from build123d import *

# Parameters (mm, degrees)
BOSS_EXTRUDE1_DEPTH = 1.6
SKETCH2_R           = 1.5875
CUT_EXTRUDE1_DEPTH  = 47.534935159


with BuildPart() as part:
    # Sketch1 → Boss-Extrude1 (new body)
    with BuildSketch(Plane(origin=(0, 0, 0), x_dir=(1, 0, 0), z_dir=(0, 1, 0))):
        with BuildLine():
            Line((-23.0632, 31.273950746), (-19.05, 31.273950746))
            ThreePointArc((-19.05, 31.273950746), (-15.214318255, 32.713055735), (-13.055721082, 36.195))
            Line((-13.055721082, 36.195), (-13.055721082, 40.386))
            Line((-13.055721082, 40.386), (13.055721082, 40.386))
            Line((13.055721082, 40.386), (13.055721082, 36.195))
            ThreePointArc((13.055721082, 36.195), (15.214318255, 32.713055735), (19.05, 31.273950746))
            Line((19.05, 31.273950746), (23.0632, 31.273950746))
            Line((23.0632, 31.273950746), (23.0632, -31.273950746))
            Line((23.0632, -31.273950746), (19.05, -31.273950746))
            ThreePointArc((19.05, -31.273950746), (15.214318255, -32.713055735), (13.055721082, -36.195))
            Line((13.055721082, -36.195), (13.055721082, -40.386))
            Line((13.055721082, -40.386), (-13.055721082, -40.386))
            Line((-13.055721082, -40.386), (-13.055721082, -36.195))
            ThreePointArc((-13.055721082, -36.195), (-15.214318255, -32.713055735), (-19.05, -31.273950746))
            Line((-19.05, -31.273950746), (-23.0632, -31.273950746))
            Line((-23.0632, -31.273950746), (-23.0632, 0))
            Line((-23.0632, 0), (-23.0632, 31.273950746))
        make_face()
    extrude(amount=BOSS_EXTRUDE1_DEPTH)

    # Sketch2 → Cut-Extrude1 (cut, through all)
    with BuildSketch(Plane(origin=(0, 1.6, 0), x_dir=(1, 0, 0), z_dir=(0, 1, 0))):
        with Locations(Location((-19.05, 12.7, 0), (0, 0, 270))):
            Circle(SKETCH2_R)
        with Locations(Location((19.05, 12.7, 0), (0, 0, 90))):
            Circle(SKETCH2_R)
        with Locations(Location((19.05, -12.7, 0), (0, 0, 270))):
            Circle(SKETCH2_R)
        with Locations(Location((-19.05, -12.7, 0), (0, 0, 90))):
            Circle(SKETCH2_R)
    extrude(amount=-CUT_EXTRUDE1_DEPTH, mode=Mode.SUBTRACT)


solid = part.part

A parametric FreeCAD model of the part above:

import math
import FreeCAD as App
import Part
import Sketcher

V = App.Vector
Q = App.Units.Quantity

doc = App.newDocument("Part")
body = doc.addObject("PartDesign::Body", "Body")

sketch1 = doc.addObject("Sketcher::SketchObject", "Sketch")
body.addObject(sketch1)
sketch1.AttachmentSupport = (doc.XZ_Plane, [""])
sketch1.MapMode = "FlatFace"
sketch1.addGeometry([
    Part.LineSegment(V(-19.05, -31.273951, 0), V(-23.0632, -31.273951, 0)),
    Part.LineSegment(V(-23.0632, -31.273951, 0), V(-23.0632, 31.273951, 0)),
    Part.LineSegment(V(-23.0632, 31.273951, 0), V(-19.05, 31.273951, 0)),
    Part.ArcOfCircle(Part.Circle(V(-19.243533, 37.621001, 0), V(0, 0, 1), 6.35), math.radians(-88.253486), math.radians(-12.977421)),
    Part.LineSegment(V(-13.055721, 36.195, 0), V(-13.055721, 40.386, 0)),
    Part.LineSegment(V(-13.055721, 40.386, 0), V(13.055721, 40.386, 0)),
    Part.LineSegment(V(13.055721, 40.386, 0), V(13.055721, 36.195, 0)),
    Part.ArcOfCircle(Part.Circle(V(19.243533, 37.621001, 0), V(0, 0, 1), 6.35), math.radians(-167.022579), math.radians(-91.746514)),
    Part.LineSegment(V(19.05, 31.273951, 0), V(23.0632, 31.273951, 0)),
    Part.LineSegment(V(23.0632, 31.273951, 0), V(23.0632, -31.273951, 0)),
    Part.LineSegment(V(23.0632, -31.273951, 0), V(19.05, -31.273951, 0)),
    Part.ArcOfCircle(Part.Circle(V(19.243533, -37.621001, 0), V(0, 0, 1), 6.35), math.radians(91.746514), math.radians(167.022579)),
    Part.LineSegment(V(13.055721, -36.195, 0), V(13.055721, -40.386, 0)),
    Part.LineSegment(V(13.055721, -40.386, 0), V(-13.055721, -40.386, 0)),
    Part.LineSegment(V(-13.055721, -40.386, 0), V(-13.055721, -36.195, 0)),
    Part.ArcOfCircle(Part.Circle(V(-19.243533, -37.621001, 0), V(0, 0, 1), 6.35), math.radians(12.977421), math.radians(88.253486)),
], False)
sketch1.addConstraint([
    Sketcher.Constraint("Coincident", 0, 2, 1, 1),
    Sketcher.Constraint("Coincident", 1, 2, 2, 1),
    Sketcher.Constraint("Coincident", 2, 2, 3, 1),
    Sketcher.Constraint("Coincident", 3, 2, 4, 1),
    Sketcher.Constraint("Coincident", 4, 2, 5, 1),
    Sketcher.Constraint("Coincident", 5, 2, 6, 1),
    Sketcher.Constraint("Coincident", 6, 2, 7, 1),
    Sketcher.Constraint("Coincident", 7, 2, 8, 1),
    Sketcher.Constraint("Coincident", 8, 2, 9, 1),
    Sketcher.Constraint("Coincident", 9, 2, 10, 1),
    Sketcher.Constraint("Coincident", 10, 2, 11, 1),
    Sketcher.Constraint("Coincident", 11, 2, 12, 1),
    Sketcher.Constraint("Coincident", 12, 2, 13, 1),
    Sketcher.Constraint("Coincident", 13, 2, 14, 1),
    Sketcher.Constraint("Coincident", 14, 2, 15, 1),
    Sketcher.Constraint("Coincident", 15, 2, 0, 1),
    Sketcher.Constraint("Horizontal", 0),
    Sketcher.Constraint("Vertical", 1),
    Sketcher.Constraint("Horizontal", 2),
    Sketcher.Constraint("Vertical", 4),
    Sketcher.Constraint("Horizontal", 5),
    Sketcher.Constraint("Vertical", 6),
    Sketcher.Constraint("Horizontal", 8),
    Sketcher.Constraint("Vertical", 9),
    Sketcher.Constraint("Horizontal", 10),
    Sketcher.Constraint("Vertical", 12),
    Sketcher.Constraint("Horizontal", 13),
    Sketcher.Constraint("Vertical", 14),
    Sketcher.Constraint("Equal", 3, 7),
    Sketcher.Constraint("Equal", 7, 11),
    Sketcher.Constraint("Equal", 11, 15),
    Sketcher.Constraint("Symmetric", 3, 3, 11, 3, -1, 1),
    Sketcher.Constraint("Symmetric", 7, 3, 15, 3, -1, 1),
    Sketcher.Constraint("Symmetric", 0, 2, 8, 2, -1, 1),
    Sketcher.Constraint("Symmetric", 4, 2, 12, 2, -1, 1),
    Sketcher.Constraint("Symmetric", 3, 3, 7, 3, -2),
    Sketcher.Constraint("Horizontal", 3, 2, 6, 2),
    Sketcher.Constraint("Horizontal", 2, 2, 7, 2),
    Sketcher.Constraint("Horizontal", 0, 2, 9, 2),
    Sketcher.Constraint("Horizontal", 11, 2, 14, 2),
    Sketcher.Constraint("Radius", 3, Q("0.25 in")),
    Sketcher.Constraint("DistanceX", 0, 2, 0, 1, Q("0.158 in")),
    Sketcher.Constraint("DistanceY", 4, 1, 4, 2, Q("0.165 in")),
    Sketcher.Constraint("DistanceX", 2, 2, -1, 1, Q("0.75 in")),
    Sketcher.Constraint("DistanceY", -1, 1, 4, 2, Q("1.59 in")),
    Sketcher.Constraint("DistanceY", 1, 1, 1, 2, 62.547901),
    Sketcher.Constraint("DistanceY", -1, 1, 3, 3, 37.621001),
])
pad1 = doc.addObject("PartDesign::Pad", "Pad")
body.addObject(pad1)
pad1.Profile = sketch1
pad1.Length = 1.6
pad1.Reversed = True

sketch2 = doc.addObject("Sketcher::SketchObject", "Sketch001")
body.addObject(sketch2)
sketch2.AttachmentSupport = (doc.XZ_Plane, [""])
sketch2.MapMode = "FlatFace"
sketch2.AttachmentOffset = App.Placement(V(0, 0, -1.6), App.Rotation())
sketch2.addGeometry([
    Part.Circle(V(-19.05, -12.7, 0), V(0, 0, 1), 1.5875),
    Part.Circle(V(19.05, -12.7, 0), V(0, 0, 1), 1.5875),
    Part.Circle(V(19.05, 12.7, 0), V(0, 0, 1), 1.5875),
    Part.Circle(V(-19.05, 12.7, 0), V(0, 0, 1), 1.5875),
], False)
sketch2.addConstraint([
    Sketcher.Constraint("Equal", 0, 1),
    Sketcher.Constraint("Equal", 1, 2),
    Sketcher.Constraint("Equal", 2, 3),
    Sketcher.Constraint("Symmetric", 0, 3, 2, 3, -1, 1),
    Sketcher.Constraint("Symmetric", 1, 3, 3, 3, -1, 1),
    Sketcher.Constraint("Symmetric", 0, 3, 1, 3, -2),
    Sketcher.Constraint("Diameter", 0, Q("0.125 in")),
    Sketcher.Constraint("DistanceY", 1, 3, 2, 3, Q("1 in")),
    Sketcher.Constraint("DistanceX", 0, 3, 1, 3, Q("1.5 in")),
])
pocket1 = doc.addObject("PartDesign::Pocket", "Pocket")
body.addObject(pocket1)
pocket1.Profile = sketch2
pocket1.Type = "ThroughAll"
pocket1.Reversed = True

doc.recompute()
